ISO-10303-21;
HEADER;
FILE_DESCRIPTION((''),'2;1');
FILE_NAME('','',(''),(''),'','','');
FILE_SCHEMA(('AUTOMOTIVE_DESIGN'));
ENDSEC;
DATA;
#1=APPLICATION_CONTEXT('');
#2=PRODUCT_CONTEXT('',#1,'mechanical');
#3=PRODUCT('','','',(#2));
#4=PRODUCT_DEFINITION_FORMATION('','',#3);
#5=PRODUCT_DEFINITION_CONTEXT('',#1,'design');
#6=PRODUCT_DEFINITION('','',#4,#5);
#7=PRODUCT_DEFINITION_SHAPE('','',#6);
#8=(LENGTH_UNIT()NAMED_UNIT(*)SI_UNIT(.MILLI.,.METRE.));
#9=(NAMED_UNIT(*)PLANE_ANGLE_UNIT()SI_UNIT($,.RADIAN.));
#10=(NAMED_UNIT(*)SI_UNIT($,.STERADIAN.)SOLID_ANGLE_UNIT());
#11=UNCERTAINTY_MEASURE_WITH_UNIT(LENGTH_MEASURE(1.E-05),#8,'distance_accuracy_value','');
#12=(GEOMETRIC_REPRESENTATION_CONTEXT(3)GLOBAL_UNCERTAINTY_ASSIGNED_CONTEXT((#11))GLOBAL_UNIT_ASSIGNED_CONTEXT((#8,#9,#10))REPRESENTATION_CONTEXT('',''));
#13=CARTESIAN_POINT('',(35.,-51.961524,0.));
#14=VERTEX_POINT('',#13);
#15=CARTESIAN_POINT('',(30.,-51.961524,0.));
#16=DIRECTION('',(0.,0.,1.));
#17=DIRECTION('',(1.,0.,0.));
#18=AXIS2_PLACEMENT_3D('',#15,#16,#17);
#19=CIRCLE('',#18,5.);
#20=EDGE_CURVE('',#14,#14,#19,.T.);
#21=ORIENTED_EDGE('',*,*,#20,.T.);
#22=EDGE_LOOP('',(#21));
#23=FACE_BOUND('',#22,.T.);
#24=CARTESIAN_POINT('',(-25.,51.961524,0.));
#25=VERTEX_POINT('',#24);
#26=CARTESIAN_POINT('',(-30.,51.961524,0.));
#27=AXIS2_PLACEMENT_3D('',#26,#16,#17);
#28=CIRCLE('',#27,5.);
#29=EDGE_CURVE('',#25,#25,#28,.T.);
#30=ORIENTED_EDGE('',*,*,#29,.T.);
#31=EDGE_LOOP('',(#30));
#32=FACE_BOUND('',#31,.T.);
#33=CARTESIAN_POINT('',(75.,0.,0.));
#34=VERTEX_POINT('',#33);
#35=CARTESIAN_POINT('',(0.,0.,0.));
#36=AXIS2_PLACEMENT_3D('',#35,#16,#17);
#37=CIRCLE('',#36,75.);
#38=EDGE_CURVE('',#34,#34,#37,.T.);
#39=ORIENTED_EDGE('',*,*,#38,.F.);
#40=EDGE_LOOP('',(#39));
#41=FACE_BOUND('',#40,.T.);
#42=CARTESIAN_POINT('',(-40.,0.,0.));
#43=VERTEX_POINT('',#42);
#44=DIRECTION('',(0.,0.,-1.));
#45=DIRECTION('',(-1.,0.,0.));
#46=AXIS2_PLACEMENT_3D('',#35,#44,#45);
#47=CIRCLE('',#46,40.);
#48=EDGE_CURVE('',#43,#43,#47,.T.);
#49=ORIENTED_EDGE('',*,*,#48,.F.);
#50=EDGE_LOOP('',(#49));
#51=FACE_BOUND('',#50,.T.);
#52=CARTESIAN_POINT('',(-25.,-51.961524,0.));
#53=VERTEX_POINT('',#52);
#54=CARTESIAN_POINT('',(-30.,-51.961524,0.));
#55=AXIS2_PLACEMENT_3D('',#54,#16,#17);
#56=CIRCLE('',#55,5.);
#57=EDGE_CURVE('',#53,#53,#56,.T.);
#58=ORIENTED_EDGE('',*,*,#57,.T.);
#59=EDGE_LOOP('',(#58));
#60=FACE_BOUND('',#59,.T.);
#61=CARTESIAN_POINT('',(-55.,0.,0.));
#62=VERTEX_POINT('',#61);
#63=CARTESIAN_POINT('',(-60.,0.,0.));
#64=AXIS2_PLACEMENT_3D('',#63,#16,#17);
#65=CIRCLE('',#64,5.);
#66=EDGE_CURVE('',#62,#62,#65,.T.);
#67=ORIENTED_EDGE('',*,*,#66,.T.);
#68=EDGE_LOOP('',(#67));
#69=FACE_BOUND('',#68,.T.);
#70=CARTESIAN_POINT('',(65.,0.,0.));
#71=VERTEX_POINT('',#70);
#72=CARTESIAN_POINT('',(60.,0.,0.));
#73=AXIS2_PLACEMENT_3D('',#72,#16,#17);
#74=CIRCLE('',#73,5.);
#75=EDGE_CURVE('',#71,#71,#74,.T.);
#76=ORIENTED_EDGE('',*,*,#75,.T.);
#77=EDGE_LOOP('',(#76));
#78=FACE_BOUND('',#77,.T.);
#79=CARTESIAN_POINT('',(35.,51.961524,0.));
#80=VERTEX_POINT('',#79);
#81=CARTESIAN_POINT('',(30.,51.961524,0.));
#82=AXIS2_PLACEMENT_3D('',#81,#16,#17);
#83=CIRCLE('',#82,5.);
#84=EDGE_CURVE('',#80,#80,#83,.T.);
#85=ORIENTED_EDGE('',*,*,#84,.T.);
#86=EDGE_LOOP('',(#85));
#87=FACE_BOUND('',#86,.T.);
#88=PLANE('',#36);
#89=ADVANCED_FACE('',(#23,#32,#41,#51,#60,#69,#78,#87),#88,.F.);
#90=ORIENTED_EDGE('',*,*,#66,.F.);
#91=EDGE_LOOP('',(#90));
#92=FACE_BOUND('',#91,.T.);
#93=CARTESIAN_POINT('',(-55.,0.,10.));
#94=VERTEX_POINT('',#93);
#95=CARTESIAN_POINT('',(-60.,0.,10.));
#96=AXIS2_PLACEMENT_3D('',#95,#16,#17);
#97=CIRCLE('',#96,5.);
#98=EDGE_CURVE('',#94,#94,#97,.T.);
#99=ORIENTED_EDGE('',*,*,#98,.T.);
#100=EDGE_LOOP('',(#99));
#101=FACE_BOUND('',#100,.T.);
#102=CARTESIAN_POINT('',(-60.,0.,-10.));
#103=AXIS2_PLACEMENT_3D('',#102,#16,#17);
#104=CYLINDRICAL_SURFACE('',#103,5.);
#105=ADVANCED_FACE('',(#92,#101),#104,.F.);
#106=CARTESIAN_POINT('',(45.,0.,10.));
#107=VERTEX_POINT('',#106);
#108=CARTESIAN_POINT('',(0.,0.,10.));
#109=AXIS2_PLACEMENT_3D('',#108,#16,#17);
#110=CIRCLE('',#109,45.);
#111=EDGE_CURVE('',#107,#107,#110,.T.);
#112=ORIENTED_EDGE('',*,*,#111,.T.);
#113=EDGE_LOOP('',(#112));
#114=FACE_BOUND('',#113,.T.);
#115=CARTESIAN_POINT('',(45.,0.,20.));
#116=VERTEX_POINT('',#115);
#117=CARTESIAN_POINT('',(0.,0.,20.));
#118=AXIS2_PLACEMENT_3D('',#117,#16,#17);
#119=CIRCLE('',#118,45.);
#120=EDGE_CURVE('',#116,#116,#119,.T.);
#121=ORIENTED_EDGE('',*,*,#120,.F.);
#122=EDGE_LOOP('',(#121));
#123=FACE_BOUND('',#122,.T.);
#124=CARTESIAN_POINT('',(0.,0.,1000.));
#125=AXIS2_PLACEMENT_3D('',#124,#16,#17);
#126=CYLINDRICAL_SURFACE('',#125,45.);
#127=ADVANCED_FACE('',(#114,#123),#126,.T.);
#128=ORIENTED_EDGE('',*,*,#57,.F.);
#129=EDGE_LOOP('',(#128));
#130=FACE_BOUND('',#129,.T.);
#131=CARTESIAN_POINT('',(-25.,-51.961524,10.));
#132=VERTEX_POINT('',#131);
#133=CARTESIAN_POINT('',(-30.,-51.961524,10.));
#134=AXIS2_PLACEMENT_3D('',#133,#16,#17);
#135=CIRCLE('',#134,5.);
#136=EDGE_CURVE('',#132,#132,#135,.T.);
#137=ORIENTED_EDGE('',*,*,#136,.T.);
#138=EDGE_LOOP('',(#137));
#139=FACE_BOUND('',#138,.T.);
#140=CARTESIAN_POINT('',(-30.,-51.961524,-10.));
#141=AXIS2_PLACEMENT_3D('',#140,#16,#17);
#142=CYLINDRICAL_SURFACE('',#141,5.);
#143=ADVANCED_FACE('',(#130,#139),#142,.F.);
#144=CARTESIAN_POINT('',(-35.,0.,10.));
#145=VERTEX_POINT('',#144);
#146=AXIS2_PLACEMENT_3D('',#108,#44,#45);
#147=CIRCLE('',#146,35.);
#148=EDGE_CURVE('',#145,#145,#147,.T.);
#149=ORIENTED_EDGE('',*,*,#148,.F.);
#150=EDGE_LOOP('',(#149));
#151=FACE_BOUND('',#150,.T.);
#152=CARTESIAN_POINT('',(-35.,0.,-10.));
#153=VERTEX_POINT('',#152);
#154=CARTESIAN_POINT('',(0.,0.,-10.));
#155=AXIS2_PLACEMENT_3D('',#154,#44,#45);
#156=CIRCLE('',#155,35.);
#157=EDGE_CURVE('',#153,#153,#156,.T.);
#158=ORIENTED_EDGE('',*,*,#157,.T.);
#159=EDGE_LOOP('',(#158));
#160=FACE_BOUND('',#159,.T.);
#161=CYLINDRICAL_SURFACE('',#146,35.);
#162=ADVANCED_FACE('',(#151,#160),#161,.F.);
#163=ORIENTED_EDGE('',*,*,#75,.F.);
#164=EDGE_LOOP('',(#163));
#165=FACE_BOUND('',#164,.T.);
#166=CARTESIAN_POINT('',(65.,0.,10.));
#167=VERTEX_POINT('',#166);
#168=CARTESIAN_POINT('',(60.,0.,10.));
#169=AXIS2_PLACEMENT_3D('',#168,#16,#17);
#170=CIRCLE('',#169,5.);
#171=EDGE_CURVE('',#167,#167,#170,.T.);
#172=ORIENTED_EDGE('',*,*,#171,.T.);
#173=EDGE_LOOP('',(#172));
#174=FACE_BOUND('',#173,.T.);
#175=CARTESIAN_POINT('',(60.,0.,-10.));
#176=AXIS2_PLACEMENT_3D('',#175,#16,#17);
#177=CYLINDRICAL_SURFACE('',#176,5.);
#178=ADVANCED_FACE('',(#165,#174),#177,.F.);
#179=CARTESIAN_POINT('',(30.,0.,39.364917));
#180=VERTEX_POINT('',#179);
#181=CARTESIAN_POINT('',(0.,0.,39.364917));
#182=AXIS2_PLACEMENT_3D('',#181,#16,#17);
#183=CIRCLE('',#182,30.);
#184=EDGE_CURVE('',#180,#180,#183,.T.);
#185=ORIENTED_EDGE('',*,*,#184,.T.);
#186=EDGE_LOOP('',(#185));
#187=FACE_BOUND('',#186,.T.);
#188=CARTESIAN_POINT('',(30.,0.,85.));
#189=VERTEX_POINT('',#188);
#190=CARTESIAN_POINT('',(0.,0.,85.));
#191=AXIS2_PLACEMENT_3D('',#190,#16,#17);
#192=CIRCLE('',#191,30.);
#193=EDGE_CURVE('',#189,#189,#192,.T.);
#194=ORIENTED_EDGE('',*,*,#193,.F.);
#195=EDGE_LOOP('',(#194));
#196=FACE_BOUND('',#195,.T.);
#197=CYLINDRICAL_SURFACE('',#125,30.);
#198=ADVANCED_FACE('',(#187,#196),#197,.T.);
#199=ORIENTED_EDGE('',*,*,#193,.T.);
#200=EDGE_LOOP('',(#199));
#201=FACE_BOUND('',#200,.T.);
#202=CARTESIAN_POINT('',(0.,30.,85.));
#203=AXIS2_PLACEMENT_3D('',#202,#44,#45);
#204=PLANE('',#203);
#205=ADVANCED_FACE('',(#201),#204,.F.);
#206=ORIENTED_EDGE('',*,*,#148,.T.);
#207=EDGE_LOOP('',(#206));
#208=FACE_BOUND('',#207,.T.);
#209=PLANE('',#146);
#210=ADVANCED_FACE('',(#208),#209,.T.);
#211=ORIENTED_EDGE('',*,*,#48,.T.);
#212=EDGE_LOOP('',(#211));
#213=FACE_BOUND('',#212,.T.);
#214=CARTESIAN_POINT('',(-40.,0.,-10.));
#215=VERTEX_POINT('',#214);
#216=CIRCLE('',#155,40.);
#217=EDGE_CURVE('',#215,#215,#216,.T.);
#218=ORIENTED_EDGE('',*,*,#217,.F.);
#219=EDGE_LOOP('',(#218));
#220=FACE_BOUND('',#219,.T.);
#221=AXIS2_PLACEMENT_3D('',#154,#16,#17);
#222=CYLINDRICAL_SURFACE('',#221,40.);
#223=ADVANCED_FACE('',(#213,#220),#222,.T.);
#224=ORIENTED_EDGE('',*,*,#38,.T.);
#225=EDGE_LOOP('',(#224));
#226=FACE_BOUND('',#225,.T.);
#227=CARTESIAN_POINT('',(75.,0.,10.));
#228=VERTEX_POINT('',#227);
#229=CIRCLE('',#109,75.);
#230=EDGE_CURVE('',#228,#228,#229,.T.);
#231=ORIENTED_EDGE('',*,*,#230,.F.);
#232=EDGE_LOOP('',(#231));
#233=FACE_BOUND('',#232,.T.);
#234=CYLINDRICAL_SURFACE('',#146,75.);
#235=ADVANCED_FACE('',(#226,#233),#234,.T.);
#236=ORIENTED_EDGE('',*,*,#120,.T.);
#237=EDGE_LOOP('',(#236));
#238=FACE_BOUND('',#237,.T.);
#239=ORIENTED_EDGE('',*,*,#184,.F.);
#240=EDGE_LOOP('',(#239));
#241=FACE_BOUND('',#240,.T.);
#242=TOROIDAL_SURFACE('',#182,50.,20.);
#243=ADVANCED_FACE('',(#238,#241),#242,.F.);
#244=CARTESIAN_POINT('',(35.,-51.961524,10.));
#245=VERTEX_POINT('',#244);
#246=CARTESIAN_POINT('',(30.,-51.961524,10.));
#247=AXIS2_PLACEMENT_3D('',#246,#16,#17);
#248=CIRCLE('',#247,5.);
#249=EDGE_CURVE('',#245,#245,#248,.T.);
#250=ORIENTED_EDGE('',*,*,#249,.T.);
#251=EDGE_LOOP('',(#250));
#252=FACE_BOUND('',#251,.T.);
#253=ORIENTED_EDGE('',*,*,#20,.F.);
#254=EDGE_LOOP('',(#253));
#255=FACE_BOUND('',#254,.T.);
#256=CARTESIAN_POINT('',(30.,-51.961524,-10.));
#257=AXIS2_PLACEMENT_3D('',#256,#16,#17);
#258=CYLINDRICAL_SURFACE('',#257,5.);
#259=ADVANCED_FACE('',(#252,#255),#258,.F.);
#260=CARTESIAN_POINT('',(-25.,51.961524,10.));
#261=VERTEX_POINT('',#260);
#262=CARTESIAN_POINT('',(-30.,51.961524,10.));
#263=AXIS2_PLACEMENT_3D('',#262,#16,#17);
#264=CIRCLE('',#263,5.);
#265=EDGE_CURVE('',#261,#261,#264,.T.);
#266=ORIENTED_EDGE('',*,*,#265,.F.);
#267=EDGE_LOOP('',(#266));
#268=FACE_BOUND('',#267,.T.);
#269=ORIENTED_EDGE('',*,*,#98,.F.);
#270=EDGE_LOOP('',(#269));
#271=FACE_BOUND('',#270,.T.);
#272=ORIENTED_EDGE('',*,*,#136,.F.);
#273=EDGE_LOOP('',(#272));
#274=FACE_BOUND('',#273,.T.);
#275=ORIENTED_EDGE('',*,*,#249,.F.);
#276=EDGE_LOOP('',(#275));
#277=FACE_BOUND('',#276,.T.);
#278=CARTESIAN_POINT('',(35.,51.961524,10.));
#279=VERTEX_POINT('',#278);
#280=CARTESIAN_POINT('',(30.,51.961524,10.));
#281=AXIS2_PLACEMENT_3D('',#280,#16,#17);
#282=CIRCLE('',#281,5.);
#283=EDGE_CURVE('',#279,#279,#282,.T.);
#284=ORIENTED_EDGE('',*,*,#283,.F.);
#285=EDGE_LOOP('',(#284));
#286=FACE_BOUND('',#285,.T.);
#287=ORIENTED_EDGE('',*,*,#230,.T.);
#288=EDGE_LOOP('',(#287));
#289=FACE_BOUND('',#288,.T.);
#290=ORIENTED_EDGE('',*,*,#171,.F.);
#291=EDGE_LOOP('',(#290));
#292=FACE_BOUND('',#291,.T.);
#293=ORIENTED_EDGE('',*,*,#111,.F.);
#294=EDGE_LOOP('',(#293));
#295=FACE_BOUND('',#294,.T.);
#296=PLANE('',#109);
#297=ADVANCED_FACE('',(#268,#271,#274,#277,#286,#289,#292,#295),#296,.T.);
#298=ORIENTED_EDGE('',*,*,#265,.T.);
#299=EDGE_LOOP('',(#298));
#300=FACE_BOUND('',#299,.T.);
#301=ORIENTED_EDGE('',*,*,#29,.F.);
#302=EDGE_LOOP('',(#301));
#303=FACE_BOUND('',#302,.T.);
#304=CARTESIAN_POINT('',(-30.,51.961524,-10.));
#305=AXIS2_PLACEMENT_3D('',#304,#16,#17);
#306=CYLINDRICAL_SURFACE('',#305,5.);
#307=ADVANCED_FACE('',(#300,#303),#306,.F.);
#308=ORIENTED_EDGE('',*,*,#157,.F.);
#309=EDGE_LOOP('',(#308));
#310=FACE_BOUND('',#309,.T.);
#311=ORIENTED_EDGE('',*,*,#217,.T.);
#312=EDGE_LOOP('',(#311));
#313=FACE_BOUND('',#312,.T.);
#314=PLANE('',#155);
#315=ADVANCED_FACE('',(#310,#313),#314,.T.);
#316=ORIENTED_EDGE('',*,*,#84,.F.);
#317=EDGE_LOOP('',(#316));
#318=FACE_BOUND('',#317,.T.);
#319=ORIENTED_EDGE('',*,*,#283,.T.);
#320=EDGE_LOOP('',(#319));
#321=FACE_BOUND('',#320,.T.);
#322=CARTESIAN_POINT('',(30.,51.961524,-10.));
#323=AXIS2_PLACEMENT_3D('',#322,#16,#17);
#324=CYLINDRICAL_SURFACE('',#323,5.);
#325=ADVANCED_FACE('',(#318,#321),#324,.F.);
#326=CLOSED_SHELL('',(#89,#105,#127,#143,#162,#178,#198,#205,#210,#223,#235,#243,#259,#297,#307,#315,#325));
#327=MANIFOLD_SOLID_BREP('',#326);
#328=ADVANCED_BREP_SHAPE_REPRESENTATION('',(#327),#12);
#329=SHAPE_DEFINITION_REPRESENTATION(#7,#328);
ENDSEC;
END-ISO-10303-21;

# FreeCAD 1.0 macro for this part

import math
import FreeCAD as App
import Part
import Sketcher
Q = App.Units.Quantity

doc = App.newDocument("Part")
body = doc.addObject("PartDesign::Body", "Body")

# Sketch on XY plane
sketch1 = body.newObject("Sketcher::SketchObject", "Sketch")
sketch1.AttachmentSupport = (doc.getObject("XY_Plane"), [""])
sketch1.MapMode = "FlatFace"
sketch1.addGeometry(Part.Circle(App.Vector(0, 0, 0), App.Vector(0, 0, 1), 75), False)
sketch1.addConstraint([
    Sketcher.Constraint("Coincident", 0, 3, -1, 1),
    Sketcher.Constraint("Diameter", 0, Q("150 mm")),
])
pad1 = body.newObject("PartDesign::Pad", "Pad")
pad1.Profile = sketch1
pad1.Length = 10

# Sketch on YZ plane
sketch2 = body.newObject("Sketcher::SketchObject", "Sketch001")
sketch2.AttachmentSupport = (doc.getObject("YZ_Plane"), [""])
sketch2.MapMode = "FlatFace"
sketch2.addGeometry([
    Part.LineSegment(App.Vector(45, 10, 0), App.Vector(45, 20, 0)),  # 0
    Part.ArcOfCircle(Part.Circle(App.Vector(50, 39, 0), App.Vector(0, 0, 1), 20), math.radians(180), math.radians(256)),  # 1
    Part.LineSegment(App.Vector(30, 39, 0), App.Vector(30, 85, 0)),  # 2
    Part.LineSegment(App.Vector(30, 85, 0), App.Vector(0, 85, 0)),  # 3
    Part.LineSegment(App.Vector(0, 85, 0), App.Vector(0, 10, 0)),  # 4
    Part.LineSegment(App.Vector(0, 10, 0), App.Vector(45, 10, 0)),  # 5
], False)
sketch2.addConstraint([
    Sketcher.Constraint("Coincident", 0, 2, 1, 2),
    Sketcher.Constraint("Tangent", 1, 1, 2, 1),
    Sketcher.Constraint("Coincident", 2, 2, 3, 1),
    Sketcher.Constraint("Coincident", 3, 2, 4, 1),
    Sketcher.Constraint("Coincident", 4, 2, 5, 1),
    Sketcher.Constraint("Coincident", 5, 2, 0, 1),
    Sketcher.Constraint("Vertical", 0),
    Sketcher.Constraint("Vertical", 2),
    Sketcher.Constraint("Horizontal", 3),
    Sketcher.Constraint("Vertical", 4),
    Sketcher.Constraint("Horizontal", 5),
    Sketcher.Constraint("PointOnObject", 3, 2, -2),
    Sketcher.Constraint("Radius", 1, Q("20 mm")),
    Sketcher.Constraint("DistanceX", 3, 2, 3, 1, Q("30 mm")),
    Sketcher.Constraint("DistanceX", 5, 1, 5, 2, Q("45 mm")),
    Sketcher.Constraint("DistanceY", 0, 1, 0, 2, Q("10 mm")),
    Sketcher.Constraint("DistanceY", 4, 2, 4, 1, Q("75 mm")),
    Sketcher.Constraint("DistanceY", -1, 1, 0, 2, Q("20 mm")),
])
revolution = body.newObject("PartDesign::Revolution", "Revolution")
revolution.Profile = sketch2
revolution.ReferenceAxis = (sketch2, ["V_Axis"])
revolution.Angle = 360

# Sketch on XY plane
sketch3 = body.newObject("Sketcher::SketchObject", "Sketch002")
sketch3.AttachmentSupport = (doc.getObject("XY_Plane"), [""])
sketch3.MapMode = "FlatFace"
sketch3.addGeometry(Part.Circle(App.Vector(0, 0, 0), App.Vector(0, 0, 1), 40), False)
sketch3.addConstraint([
    Sketcher.Constraint("Coincident", 0, 3, -1, 1),
    Sketcher.Constraint("Diameter", 0, Q("80 mm")),
])
pad2 = body.newObject("PartDesign::Pad", "Pad001")
pad2.Profile = sketch3
pad2.Length = 10
pad2.Reversed = True

# Sketch on XY plane
sketch4 = body.newObject("Sketcher::SketchObject", "Sketch003")
sketch4.AttachmentSupport = (doc.getObject("XY_Plane"), [""])
sketch4.MapMode = "FlatFace"
sketch4.AttachmentOffset = App.Placement(App.Vector(0, 0, -10), App.Rotation())
sketch4.addGeometry(Part.Circle(App.Vector(0, 0, 0), App.Vector(0, 0, 1), 35), False)
sketch4.addConstraint([
    Sketcher.Constraint("Coincident", 0, 3, -1, 1),
    Sketcher.Constraint("Diameter", 0, Q("70 mm")),
])
pocket1 = body.newObject("PartDesign::Pocket", "Pocket")
pocket1.Profile = sketch4
pocket1.Length = 20
pocket1.Reversed = True

# Sketch on XY plane
sketch5 = body.newObject("Sketcher::SketchObject", "Sketch004")
sketch5.AttachmentSupport = (doc.getObject("XY_Plane"), [""])
sketch5.MapMode = "FlatFace"
sketch5.AttachmentOffset = App.Placement(App.Vector(0, 0, 10), App.Rotation())
sketch5.addGeometry([
    Part.Circle(App.Vector(60, 0, 0), App.Vector(0, 0, 1), 5),  # 0
    Part.Circle(App.Vector(30, -52, 0), App.Vector(0, 0, 1), 5),  # 1
    Part.Circle(App.Vector(-30, -52, 0), App.Vector(0, 0, 1), 5),  # 2
    Part.Circle(App.Vector(-60, 0, 0), App.Vector(0, 0, 1), 5),  # 3
    Part.Circle(App.Vector(-30, 52, 0), App.Vector(0, 0, 1), 5),  # 4
    Part.Circle(App.Vector(30, 52, 0), App.Vector(0, 0, 1), 5),  # 5
], False)
sketch5.addConstraint([
    Sketcher.Constraint("Equal", 0, 1),
    Sketcher.Constraint("Equal", 1, 2),
    Sketcher.Constraint("Equal", 2, 3),
    Sketcher.Constraint("Equal", 3, 4),
    Sketcher.Constraint("Equal", 4, 5),
    Sketcher.Constraint("Symmetric", 0, 3, 3, 3, -1, 1),
    Sketcher.Constraint("Symmetric", 1, 3, 4, 3, -1, 1),
    Sketcher.Constraint("Symmetric", 2, 3, 5, 3, -1, 1),
    Sketcher.Constraint("Symmetric", 1, 3, 2, 3, -2),
    Sketcher.Constraint("PointOnObject", 0, 3, -1),
    Sketcher.Constraint("Diameter", 0, Q("10 mm")),
    Sketcher.Constraint("DistanceX", -1, 1, 0, 3, Q("60 mm")),
    Sketcher.Constraint("DistanceX", -1, 1, 1, 3, Q("30 mm")),
    Sketcher.Constraint("DistanceY", 2, 3, 4, 3, Q("103.923048 mm")),
])
pocket2 = body.newObject("PartDesign::Pocket", "Pocket001")
pocket2.Profile = sketch5
pocket2.Length = 20

doc.recompute()
